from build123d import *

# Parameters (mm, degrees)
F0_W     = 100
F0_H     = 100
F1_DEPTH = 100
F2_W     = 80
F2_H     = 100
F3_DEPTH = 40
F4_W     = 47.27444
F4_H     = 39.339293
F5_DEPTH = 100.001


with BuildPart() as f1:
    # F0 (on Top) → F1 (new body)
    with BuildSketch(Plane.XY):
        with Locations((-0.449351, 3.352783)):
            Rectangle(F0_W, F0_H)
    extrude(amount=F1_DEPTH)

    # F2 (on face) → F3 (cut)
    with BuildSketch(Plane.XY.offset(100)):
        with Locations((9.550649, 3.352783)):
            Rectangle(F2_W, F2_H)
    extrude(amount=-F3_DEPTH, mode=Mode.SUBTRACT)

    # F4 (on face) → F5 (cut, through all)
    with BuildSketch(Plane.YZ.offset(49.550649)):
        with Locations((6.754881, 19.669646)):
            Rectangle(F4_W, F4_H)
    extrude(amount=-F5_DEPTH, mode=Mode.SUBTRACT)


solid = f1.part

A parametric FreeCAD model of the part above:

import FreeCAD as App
import Part
import Sketcher
Q = App.Units.Quantity


def add_polygon(sketch, points):
    """Adds a closed chain of lines whose ends are joined by coincident constraints."""
    first, n = sketch.GeometryCount, len(points)
    for a, b in zip(points, points[1:] + points[:1]):
        sketch.addGeometry(Part.LineSegment(App.Vector(*a, 0), App.Vector(*b, 0)), False)
    for i in range(n):
        sketch.addConstraint(Sketcher.Constraint("Coincident", first + i, 2, first + (i + 1) % n, 1))

doc = App.newDocument("Part")
body = doc.addObject("PartDesign::Body", "Body")

sketch1 = body.newObject("Sketcher::SketchObject", "Sketch")
sketch1.AttachmentSupport = (doc.getObject("XY_Plane"), [""])
sketch1.MapMode = "FlatFace"
add_polygon(sketch1, [(-50, 53), (-50, -47), (50, -47), (50, 53)])
sketch1.addConstraint(Sketcher.Constraint("Vertical", 0))
sketch1.addConstraint(Sketcher.Constraint("Horizontal", 1))
sketch1.addConstraint(Sketcher.Constraint("Vertical", 2))
sketch1.addConstraint(Sketcher.Constraint("Horizontal", 3))
sketch1.addConstraint(Sketcher.Constraint("Equal", 3, 0))
sketch1.addConstraint(Sketcher.Constraint("DistanceX", 1, 1, 1, 2, Q("100 mm")))
sketch1.addConstraint(Sketcher.Constraint("DistanceX", 0, 2, -1, 1, Q("50.449351 mm")))
sketch1.addConstraint(Sketcher.Constraint("DistanceY", 0, 2, -1, 1, Q("46.647217 mm")))
pad1 = body.newObject("PartDesign::Pad", "Pad")
pad1.Profile = sketch1
pad1.Length = 100

sketch2 = body.newObject("Sketcher::SketchObject", "Sketch001")
sketch2.AttachmentSupport = (doc.getObject("XY_Plane"), [""])
sketch2.MapMode = "FlatFace"
sketch2.AttachmentOffset = App.Placement(App.Vector(0, 0, 100), App.Rotation())
add_polygon(sketch2, [(-30, 53), (-30, -47), (50, -47), (50, 53)])
sketch2.addConstraint(Sketcher.Constraint("Vertical", 0))
sketch2.addConstraint(Sketcher.Constraint("Horizontal", 1))
sketch2.addConstraint(Sketcher.Constraint("Vertical", 2))
sketch2.addConstraint(Sketcher.Constraint("Horizontal", 3))
sketch2.addConstraint(Sketcher.Constraint("DistanceX", 1, 1, 1, 2, Q("80 mm")))
sketch2.addConstraint(Sketcher.Constraint("DistanceY", 0, 2, 0, 1, Q("100 mm")))
sketch2.addConstraint(Sketcher.Constraint("DistanceX", 0, 2, -1, 1, Q("30.449351 mm")))
sketch2.addConstraint(Sketcher.Constraint("DistanceY", 0, 2, -1, 1, Q("46.647217 mm")))
pocket1 = body.newObject("PartDesign::Pocket", "Pocket")
pocket1.Profile = sketch2
pocket1.Length = 40

sketch3 = body.newObject("Sketcher::SketchObject", "Sketch002")
sketch3.AttachmentSupport = (doc.getObject("YZ_Plane"), [""])
sketch3.MapMode = "FlatFace"
sketch3.AttachmentOffset = App.Placement(App.Vector(0, 0, 49.550649), App.Rotation())
add_polygon(sketch3, [(-17, 39), (-17, 0), (30, 0), (30, 39)])
sketch3.addConstraint(Sketcher.Constraint("Vertical", 0))
sketch3.addConstraint(Sketcher.Constraint("Horizontal", 1))
sketch3.addConstraint(Sketcher.Constraint("Vertical", 2))
sketch3.addConstraint(Sketcher.Constraint("Horizontal", 3))
sketch3.addConstraint(Sketcher.Constraint("PointOnObject", 0, 2, -1))
sketch3.addConstraint(Sketcher.Constraint("DistanceX", 1, 1, 1, 2, Q("47.27444 mm")))
sketch3.addConstraint(Sketcher.Constraint("DistanceX", -1, 1, 1, 2, Q("30.392101 mm")))
sketch3.addConstraint(Sketcher.Constraint("DistanceY", 0, 2, 0, 1, Q("39.339293 mm")))
pocket2 = body.newObject("PartDesign::Pocket", "Pocket001")
pocket2.Profile = sketch3
pocket2.Type = "ThroughAll"

doc.recompute()
